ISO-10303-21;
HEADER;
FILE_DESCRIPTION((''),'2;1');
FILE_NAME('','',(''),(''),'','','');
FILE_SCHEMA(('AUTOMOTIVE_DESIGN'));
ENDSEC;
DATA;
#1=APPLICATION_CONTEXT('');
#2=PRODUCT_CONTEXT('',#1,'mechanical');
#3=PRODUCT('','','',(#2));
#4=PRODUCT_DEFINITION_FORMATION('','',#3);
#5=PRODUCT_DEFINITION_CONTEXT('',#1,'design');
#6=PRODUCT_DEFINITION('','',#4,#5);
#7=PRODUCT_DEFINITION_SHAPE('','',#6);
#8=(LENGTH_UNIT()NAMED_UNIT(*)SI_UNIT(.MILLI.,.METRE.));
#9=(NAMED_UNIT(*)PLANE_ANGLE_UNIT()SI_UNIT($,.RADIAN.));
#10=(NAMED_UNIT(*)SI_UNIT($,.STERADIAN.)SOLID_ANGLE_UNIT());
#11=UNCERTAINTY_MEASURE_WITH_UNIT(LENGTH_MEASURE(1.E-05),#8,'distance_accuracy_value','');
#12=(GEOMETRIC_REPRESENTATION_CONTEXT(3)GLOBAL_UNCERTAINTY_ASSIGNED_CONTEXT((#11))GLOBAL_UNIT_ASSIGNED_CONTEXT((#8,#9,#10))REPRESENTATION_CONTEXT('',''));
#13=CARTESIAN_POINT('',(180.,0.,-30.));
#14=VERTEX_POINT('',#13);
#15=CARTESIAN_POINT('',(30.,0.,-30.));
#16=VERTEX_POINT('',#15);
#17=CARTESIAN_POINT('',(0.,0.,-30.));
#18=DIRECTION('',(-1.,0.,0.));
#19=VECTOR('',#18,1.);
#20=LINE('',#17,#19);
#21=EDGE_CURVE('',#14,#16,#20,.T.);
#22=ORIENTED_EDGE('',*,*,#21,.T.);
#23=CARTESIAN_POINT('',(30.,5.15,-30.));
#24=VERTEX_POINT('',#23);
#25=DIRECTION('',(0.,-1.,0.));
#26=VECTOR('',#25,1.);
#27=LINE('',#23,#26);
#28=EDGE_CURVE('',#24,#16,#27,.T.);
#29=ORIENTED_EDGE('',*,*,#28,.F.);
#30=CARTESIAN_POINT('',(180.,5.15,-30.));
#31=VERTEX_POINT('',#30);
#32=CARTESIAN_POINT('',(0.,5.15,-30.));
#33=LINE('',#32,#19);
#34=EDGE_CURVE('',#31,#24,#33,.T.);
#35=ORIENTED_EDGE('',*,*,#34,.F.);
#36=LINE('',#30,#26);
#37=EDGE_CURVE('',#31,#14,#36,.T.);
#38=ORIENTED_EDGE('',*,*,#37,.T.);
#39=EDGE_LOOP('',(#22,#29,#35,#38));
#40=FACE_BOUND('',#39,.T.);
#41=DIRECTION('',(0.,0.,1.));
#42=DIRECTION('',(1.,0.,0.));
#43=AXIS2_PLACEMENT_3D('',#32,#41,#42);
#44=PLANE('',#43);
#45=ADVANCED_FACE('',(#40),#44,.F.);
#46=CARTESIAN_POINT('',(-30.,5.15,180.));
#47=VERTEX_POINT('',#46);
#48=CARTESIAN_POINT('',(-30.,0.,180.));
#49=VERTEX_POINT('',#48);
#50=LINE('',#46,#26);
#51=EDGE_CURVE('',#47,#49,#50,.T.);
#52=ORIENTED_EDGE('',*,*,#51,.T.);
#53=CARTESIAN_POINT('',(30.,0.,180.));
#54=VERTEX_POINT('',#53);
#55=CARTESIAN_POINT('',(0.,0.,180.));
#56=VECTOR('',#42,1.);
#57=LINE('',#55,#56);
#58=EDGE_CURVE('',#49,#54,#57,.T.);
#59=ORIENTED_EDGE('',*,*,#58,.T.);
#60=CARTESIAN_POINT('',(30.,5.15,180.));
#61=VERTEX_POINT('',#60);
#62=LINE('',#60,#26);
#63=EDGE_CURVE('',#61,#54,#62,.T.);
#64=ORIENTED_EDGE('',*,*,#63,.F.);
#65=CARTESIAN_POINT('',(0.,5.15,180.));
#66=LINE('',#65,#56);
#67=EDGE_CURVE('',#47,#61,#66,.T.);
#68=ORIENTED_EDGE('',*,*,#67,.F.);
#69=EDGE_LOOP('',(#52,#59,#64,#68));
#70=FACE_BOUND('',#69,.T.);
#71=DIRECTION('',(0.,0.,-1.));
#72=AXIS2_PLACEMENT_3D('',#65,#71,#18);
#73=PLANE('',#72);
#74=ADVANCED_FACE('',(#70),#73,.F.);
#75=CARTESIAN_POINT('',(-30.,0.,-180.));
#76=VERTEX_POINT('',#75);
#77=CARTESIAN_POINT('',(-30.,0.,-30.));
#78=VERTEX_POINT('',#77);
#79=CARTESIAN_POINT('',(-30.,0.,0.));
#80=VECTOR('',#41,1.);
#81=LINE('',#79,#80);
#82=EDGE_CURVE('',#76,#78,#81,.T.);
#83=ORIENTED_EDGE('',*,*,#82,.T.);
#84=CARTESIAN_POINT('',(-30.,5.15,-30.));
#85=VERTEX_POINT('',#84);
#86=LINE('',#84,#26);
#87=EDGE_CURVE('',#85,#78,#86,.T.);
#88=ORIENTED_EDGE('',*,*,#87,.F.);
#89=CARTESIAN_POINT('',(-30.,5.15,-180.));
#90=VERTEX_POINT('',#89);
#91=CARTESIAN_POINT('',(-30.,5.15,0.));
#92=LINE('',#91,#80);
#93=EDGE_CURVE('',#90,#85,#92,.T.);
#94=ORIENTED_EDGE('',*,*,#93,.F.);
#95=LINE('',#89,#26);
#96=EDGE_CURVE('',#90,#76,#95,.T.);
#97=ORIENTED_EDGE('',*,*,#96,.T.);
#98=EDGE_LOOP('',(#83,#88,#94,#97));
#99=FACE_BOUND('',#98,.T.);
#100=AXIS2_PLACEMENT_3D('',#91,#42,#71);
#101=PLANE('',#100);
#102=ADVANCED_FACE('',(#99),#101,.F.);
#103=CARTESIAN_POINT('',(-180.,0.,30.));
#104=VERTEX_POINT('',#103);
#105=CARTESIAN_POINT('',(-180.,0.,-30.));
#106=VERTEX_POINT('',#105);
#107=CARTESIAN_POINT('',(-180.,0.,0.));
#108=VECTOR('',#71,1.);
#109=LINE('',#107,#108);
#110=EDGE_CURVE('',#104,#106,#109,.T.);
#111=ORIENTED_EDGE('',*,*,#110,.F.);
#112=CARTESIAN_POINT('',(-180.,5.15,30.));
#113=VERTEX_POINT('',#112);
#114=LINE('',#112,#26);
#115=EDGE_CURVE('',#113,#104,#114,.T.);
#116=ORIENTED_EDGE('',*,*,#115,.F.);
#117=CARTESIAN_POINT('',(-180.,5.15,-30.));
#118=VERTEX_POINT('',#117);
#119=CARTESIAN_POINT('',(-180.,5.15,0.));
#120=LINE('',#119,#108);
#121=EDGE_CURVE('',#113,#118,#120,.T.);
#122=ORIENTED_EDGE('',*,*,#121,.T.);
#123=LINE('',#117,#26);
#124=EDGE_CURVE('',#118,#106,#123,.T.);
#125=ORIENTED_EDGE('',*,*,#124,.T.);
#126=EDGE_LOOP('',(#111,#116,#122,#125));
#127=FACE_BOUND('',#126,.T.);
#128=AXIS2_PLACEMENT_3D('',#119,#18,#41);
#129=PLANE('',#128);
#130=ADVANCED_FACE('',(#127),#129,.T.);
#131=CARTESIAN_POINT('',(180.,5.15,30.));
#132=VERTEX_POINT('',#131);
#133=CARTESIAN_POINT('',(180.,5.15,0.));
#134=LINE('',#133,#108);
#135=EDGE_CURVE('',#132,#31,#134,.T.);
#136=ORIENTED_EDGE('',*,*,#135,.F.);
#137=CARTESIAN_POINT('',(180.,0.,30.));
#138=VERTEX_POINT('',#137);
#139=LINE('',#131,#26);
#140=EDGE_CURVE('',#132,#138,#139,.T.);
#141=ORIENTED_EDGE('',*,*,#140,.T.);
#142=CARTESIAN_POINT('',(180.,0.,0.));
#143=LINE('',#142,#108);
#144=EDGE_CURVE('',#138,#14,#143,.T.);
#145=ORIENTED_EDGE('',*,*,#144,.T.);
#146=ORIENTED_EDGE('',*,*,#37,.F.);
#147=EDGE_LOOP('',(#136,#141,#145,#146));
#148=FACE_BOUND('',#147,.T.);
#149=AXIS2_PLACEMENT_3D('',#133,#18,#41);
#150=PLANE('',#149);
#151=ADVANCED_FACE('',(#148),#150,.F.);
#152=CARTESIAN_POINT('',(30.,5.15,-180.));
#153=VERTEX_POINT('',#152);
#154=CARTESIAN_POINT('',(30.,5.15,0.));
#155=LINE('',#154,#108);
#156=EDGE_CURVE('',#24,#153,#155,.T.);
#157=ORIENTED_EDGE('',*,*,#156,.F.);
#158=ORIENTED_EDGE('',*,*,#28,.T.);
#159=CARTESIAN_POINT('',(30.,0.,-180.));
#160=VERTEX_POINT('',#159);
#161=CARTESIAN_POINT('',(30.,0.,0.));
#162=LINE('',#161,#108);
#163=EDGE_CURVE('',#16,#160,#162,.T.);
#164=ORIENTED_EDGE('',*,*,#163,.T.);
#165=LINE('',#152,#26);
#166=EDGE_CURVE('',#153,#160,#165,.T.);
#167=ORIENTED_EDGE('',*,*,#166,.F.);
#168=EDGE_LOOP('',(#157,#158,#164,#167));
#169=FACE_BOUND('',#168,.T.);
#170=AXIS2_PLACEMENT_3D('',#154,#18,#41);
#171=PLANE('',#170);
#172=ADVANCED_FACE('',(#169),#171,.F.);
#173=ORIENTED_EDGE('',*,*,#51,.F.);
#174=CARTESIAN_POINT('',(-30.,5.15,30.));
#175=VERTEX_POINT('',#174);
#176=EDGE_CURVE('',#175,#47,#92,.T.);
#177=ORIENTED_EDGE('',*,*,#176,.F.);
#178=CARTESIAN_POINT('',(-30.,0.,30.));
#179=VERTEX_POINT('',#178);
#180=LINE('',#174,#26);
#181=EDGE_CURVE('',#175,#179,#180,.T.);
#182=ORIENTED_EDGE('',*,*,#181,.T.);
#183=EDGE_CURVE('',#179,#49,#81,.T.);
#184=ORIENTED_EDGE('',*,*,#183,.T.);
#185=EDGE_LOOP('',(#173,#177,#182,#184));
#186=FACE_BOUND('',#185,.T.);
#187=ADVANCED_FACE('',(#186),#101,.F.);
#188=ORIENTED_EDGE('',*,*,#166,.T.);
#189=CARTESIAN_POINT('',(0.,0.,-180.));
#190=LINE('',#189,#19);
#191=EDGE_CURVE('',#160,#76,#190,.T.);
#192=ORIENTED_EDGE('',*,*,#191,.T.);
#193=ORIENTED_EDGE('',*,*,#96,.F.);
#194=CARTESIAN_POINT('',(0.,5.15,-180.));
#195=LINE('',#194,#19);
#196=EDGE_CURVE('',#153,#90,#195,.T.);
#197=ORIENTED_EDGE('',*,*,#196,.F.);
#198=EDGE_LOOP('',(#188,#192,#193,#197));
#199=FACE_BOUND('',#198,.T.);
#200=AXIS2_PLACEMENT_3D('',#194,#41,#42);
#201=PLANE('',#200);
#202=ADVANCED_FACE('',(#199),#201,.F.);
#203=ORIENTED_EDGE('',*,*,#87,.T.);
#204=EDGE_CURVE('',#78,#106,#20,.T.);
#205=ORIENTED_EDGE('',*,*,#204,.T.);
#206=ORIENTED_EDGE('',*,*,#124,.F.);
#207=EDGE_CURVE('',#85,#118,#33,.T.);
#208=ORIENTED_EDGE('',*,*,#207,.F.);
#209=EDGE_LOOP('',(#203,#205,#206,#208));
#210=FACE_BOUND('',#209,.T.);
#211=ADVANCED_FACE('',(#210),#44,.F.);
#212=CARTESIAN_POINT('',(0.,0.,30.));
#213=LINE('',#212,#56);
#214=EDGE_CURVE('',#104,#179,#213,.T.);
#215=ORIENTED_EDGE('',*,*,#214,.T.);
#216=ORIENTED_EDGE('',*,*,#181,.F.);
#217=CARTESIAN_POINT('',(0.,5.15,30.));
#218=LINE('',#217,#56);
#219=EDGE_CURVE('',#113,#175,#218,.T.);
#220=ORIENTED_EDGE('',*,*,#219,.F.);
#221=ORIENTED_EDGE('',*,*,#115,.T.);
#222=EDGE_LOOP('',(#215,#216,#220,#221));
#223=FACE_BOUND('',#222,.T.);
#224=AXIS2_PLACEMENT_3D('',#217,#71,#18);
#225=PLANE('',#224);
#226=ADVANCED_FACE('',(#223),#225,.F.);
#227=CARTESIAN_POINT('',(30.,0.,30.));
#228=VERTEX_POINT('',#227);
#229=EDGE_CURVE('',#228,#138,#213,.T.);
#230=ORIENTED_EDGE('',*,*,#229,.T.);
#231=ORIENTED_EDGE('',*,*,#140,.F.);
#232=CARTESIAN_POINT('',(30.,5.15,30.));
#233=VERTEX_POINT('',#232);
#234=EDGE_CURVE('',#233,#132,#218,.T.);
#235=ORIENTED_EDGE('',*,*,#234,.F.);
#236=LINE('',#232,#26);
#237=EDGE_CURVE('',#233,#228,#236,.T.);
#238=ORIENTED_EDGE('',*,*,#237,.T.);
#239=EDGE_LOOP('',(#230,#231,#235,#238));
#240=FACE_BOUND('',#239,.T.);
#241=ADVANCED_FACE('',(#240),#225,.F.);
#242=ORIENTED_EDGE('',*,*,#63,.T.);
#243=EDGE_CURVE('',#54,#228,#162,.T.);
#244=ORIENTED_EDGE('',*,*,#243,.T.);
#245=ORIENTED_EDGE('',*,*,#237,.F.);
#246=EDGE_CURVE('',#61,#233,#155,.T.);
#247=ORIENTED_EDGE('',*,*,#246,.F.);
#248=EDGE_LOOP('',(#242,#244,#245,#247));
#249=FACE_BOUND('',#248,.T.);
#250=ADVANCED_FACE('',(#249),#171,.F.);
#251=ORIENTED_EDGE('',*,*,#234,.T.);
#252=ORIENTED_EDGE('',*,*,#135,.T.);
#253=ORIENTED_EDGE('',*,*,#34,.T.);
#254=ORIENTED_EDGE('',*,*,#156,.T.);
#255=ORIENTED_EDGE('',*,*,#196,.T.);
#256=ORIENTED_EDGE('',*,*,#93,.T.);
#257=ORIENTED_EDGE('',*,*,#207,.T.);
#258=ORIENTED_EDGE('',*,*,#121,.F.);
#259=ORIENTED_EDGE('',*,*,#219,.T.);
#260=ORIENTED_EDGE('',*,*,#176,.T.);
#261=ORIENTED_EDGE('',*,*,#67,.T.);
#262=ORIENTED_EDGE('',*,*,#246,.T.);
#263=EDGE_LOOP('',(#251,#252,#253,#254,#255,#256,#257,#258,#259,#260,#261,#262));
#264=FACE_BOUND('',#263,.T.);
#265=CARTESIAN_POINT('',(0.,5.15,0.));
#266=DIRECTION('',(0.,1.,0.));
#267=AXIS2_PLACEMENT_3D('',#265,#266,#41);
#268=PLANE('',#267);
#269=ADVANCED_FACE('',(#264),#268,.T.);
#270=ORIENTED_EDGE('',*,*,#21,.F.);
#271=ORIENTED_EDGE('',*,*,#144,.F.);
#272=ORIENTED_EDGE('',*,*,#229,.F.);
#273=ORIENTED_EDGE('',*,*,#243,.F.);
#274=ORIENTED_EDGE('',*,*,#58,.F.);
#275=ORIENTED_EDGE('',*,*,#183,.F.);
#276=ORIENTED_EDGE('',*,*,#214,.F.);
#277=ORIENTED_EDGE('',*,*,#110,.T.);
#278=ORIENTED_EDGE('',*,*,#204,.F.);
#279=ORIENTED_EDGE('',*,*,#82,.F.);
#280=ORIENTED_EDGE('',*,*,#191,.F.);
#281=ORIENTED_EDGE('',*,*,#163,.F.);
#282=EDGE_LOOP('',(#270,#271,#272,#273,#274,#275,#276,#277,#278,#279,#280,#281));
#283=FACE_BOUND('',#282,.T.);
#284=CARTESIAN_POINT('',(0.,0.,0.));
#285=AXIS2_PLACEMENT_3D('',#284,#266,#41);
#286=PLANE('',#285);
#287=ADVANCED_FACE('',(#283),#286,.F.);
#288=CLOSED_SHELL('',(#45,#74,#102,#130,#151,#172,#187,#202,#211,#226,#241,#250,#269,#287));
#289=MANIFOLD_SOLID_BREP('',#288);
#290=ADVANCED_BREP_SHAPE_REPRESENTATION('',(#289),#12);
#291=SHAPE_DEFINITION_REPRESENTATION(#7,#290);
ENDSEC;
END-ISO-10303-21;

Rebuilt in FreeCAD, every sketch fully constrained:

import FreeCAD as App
import Part
import Sketcher

V = App.Vector
Q = App.Units.Quantity


def add_polygon(sketch, points):
    """Adds a closed chain of lines whose ends are joined by coincident constraints."""
    first, n = sketch.GeometryCount, len(points)
    for a, b in zip(points, points[1:] + points[:1]):
        sketch.addGeometry(Part.LineSegment(App.Vector(*a, 0), App.Vector(*b, 0)), False)
    for i in range(n):
        sketch.addConstraint(Sketcher.Constraint("Coincident", first + i, 2, first + (i + 1) % n, 1))

doc = App.newDocument("Part")
body = doc.addObject("PartDesign::Body", "Body")

# Sketch on XZ plane
sketch1 = doc.addObject("Sketcher::SketchObject", "Sketch")
body.addObject(sketch1)
sketch1.AttachmentSupport = (doc.XZ_Plane, [""])
sketch1.MapMode = "FlatFace"
add_polygon(sketch1, [(-180, -30), (-180, 30), (-30, 30), (-30, 180), (30, 180), (30, 30), (180, 30), (180, -30), (30, -30), (30, -180), (-30, -180), (-30, -30)])  # lines 0-11
sketch1.addConstraint([
    Sketcher.Constraint("Vertical", 0),
    Sketcher.Constraint("Horizontal", 1),
    Sketcher.Constraint("Vertical", 2),
    Sketcher.Constraint("Horizontal", 3),
    Sketcher.Constraint("Vertical", 4),
    Sketcher.Constraint("Horizontal", 5),
    Sketcher.Constraint("Vertical", 6),
    Sketcher.Constraint("Horizontal", 7),
    Sketcher.Constraint("Vertical", 8),
    Sketcher.Constraint("Horizontal", 9),
    Sketcher.Constraint("Vertical", 10),
    Sketcher.Constraint("Horizontal", 11),
    Sketcher.Constraint("Symmetric", 0, 2, 6, 2, -1, 1),
    Sketcher.Constraint("Symmetric", 2, 2, 8, 2, -1, 1),
    Sketcher.Constraint("Symmetric", 4, 2, 10, 2, -1, 1),
    Sketcher.Constraint("Symmetric", 1, 2, 4, 2, -2),
    Sketcher.Constraint("Equal", 9, 0),
    Sketcher.Constraint("Equal", 11, 2),
    Sketcher.Constraint("DistanceX", 1, 1, 1, 2, Q("150 mm")),
    Sketcher.Constraint("DistanceX", 3, 1, 3, 2, Q("60 mm")),
])
pad1 = doc.addObject("PartDesign::Pad", "Pad")
body.addObject(pad1)
pad1.Profile = sketch1
pad1.Length = 5.15
pad1.Reversed = True

doc.recompute()
